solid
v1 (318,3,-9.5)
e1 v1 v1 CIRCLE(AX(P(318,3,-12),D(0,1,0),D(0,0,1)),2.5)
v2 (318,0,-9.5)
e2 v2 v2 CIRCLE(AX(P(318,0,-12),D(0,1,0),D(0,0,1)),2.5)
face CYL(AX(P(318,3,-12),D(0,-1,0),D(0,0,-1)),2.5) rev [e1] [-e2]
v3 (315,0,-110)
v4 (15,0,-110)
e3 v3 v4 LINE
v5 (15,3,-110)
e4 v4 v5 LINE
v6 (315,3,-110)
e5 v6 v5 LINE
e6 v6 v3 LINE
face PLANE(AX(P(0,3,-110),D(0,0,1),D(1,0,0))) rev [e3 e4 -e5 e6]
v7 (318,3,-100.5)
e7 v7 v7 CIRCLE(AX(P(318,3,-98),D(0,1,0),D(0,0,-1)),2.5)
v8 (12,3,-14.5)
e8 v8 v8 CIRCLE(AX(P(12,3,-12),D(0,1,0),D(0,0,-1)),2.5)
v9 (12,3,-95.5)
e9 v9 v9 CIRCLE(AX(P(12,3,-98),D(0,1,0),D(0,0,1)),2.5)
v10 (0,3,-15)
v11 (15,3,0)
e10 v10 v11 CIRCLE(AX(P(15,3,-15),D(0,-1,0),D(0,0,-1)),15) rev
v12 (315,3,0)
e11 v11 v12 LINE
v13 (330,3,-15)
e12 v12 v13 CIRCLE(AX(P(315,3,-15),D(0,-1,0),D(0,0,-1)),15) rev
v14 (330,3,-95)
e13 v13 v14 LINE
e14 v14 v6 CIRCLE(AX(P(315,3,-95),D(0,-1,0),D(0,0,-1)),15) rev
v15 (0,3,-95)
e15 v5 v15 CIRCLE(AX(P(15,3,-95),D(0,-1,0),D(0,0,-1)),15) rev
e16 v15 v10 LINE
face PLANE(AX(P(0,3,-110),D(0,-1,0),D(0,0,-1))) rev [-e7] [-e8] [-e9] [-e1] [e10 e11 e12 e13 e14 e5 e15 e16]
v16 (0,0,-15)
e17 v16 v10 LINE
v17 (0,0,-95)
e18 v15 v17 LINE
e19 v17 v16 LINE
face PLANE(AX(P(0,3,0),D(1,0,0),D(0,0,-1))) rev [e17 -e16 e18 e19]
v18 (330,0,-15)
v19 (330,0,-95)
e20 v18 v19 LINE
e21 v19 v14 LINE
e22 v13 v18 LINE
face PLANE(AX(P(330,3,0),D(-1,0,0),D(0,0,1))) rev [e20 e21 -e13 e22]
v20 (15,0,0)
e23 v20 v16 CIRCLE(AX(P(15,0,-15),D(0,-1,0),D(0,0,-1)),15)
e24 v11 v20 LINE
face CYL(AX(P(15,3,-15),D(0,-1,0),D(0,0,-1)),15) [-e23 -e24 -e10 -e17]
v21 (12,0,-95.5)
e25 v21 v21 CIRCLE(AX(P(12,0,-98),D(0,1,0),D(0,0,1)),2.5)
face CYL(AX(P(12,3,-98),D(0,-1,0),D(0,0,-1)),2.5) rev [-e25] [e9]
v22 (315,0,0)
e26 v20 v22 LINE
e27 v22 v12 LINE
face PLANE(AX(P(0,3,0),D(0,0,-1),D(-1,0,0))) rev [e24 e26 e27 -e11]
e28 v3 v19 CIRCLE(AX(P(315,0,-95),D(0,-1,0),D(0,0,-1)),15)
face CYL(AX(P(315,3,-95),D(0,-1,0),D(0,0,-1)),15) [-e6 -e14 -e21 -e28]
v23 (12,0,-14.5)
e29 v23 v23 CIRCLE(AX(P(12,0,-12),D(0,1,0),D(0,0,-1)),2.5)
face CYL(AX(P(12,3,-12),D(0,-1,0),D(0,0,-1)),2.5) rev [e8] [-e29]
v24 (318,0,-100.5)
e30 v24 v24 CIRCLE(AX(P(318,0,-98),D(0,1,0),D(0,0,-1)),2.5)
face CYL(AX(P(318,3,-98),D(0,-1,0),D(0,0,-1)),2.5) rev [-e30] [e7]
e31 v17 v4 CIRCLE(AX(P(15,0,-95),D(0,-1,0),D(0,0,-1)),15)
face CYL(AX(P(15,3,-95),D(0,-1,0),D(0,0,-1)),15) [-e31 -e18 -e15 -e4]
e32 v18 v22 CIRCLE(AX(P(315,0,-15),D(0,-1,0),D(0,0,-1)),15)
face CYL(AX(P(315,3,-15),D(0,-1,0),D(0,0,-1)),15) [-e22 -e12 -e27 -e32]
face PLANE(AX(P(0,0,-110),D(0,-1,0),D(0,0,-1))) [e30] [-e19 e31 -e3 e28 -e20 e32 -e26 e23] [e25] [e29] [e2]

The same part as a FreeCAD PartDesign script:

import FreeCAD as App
import Part
import Sketcher

V = App.Vector


def edges_at(feature, points):
    """Names of the edges that pass closest to the given points."""
    edges = feature.Shape.Edges
    near = lambda p: min(range(len(edges)), key=lambda i: edges[i].distToShape(Part.Vertex(*p))[0])
    return sorted({f"Edge{near(p) + 1}" for p in points})


def add_polygon(sketch, points):
    """Adds a closed chain of lines whose ends are joined by coincident constraints."""
    first, n = sketch.GeometryCount, len(points)
    for a, b in zip(points, points[1:] + points[:1]):
        sketch.addGeometry(Part.LineSegment(App.Vector(*a, 0), App.Vector(*b, 0)), False)
    for i in range(n):
        sketch.addConstraint(Sketcher.Constraint("Coincident", first + i, 2, first + (i + 1) % n, 1))

doc = App.newDocument("Part")
body = doc.addObject("PartDesign::Body", "Body")

# Sketch on XZ plane
sketch1 = body.newObject("Sketcher::SketchObject", "Sketch")
sketch1.AttachmentSupport = (doc.getObject("XZ_Plane"), [""])
sketch1.MapMode = "FlatFace"
add_polygon(sketch1, [(0, -110), (0, 0), (330, 0), (330, -110)])  # lines 0-3
sketch1.addGeometry(Part.Circle(V(12, -12, 0), V(0, 0, 1), 2.5), False)  # 4
sketch1.addGeometry(Part.Circle(V(318, -12, 0), V(0, 0, 1), 2.5), False)  # 5
sketch1.addGeometry(Part.Circle(V(12, -98, 0), V(0, 0, 1), 2.5), False)  # 6
sketch1.addGeometry(Part.Circle(V(318, -98, 0), V(0, 0, 1), 2.5), False)  # 7
sketch1.addConstraint(Sketcher.Constraint("Vertical", 0))
sketch1.addConstraint(Sketcher.Constraint("Horizontal", 1))
sketch1.addConstraint(Sketcher.Constraint("Vertical", 2))
sketch1.addConstraint(Sketcher.Constraint("Horizontal", 3))
sketch1.addConstraint(Sketcher.Constraint("Coincident", 0, 2, -1, 1))
sketch1.addConstraint(Sketcher.Constraint("Equal", 4, 5))
sketch1.addConstraint(Sketcher.Constraint("Equal", 5, 6))
sketch1.addConstraint(Sketcher.Constraint("Equal", 6, 7))
sketch1.addConstraint(Sketcher.Constraint("Horizontal", 4, 3, 5, 3))
sketch1.addConstraint(Sketcher.Constraint("Horizontal", 6, 3, 7, 3))
sketch1.addConstraint(Sketcher.Constraint("Vertical", 4, 3, 6, 3))
sketch1.addConstraint(Sketcher.Constraint("Vertical", 5, 3, 7, 3))
sketch1.addConstraint(Sketcher.Constraint("Diameter", 4, 5.0))
sketch1.addConstraint(Sketcher.Constraint("DistanceX", 1, 1, 1, 2, 330.0))
sketch1.addConstraint(Sketcher.Constraint("DistanceY", 0, 1, 0, 2, 110.0))
sketch1.addConstraint(Sketcher.Constraint("DistanceX", -1, 1, 4, 3, 12.0))
sketch1.addConstraint(Sketcher.Constraint("DistanceY", 4, 3, -1, 1, 12.0))
sketch1.addConstraint(Sketcher.Constraint("DistanceX", -1, 1, 5, 3, 318.0))
sketch1.addConstraint(Sketcher.Constraint("DistanceY", 6, 3, -1, 1, 98.0))
pad1 = body.newObject("PartDesign::Pad", "Pad")
pad1.Profile = sketch1
pad1.Length = 3
pad1.Reversed = True
doc.recompute()

fillet = body.newObject("PartDesign::Fillet", "Fillet")
fillet.Base = (pad1, edges_at(pad1, [
    (0, 1.5, -110),
    (330, 1.5, -110),
    (330, 1.5, 0),
    (0, 1.5, 0),
]))
fillet.Radius = 15

doc.recompute()
